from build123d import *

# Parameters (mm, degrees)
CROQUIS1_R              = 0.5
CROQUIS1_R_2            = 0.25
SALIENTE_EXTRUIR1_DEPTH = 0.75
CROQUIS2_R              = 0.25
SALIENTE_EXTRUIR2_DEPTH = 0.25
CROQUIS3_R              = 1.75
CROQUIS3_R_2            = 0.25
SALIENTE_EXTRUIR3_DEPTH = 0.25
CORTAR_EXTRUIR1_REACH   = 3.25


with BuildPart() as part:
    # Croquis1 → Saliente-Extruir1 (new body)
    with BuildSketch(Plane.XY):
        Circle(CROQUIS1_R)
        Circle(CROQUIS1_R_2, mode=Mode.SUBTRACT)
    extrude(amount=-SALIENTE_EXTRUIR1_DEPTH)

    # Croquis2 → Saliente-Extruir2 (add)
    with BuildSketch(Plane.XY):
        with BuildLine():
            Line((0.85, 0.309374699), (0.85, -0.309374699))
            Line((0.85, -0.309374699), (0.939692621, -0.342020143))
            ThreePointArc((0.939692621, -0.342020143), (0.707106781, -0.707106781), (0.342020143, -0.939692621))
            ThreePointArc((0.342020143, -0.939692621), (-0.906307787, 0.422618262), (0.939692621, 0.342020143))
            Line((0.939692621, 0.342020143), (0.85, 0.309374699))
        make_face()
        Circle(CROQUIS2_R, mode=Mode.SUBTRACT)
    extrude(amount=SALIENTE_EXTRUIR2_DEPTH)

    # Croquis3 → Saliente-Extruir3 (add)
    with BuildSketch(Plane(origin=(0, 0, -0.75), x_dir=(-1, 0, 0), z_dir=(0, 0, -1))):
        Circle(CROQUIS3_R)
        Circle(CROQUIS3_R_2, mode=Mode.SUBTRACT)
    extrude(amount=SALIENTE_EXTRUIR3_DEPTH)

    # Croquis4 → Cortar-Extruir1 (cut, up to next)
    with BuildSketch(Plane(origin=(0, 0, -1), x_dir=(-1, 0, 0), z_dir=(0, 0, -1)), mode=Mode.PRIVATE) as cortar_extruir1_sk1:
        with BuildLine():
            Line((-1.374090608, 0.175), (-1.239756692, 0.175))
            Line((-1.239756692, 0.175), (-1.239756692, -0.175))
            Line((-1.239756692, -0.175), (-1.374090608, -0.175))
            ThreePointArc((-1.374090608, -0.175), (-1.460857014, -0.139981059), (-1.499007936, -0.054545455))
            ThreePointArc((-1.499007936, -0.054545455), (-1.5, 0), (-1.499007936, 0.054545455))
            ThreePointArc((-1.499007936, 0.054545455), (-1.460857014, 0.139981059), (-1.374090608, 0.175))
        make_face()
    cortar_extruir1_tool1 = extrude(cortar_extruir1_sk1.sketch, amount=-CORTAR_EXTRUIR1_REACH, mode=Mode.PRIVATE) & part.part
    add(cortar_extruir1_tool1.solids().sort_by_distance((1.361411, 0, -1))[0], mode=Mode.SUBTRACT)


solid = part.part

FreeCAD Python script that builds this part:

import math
import FreeCAD as App
import Part
import Sketcher

V = App.Vector
Q = App.Units.Quantity

doc = App.newDocument("Part")
body = doc.addObject("PartDesign::Body", "Body")

# Sketch on XY plane
sketch1 = body.newObject("Sketcher::SketchObject", "Sketch")
sketch1.AttachmentSupport = (doc.getObject("XY_Plane"), [""])
sketch1.MapMode = "FlatFace"
sketch1.addGeometry([
    Part.Circle(V(0, 0, 0), V(0, 0, 1), 0.5),
    Part.Circle(V(0, 0, 0), V(0, 0, 1), 0.25),
], False)
sketch1.addConstraint([
    Sketcher.Constraint("Coincident", 0, 3, -1, 1),
    Sketcher.Constraint("Coincident", 1, 3, -1, 1),
    Sketcher.Constraint("Diameter", 0, Q("1 mm")),
    Sketcher.Constraint("Diameter", 1, Q("0.5 mm")),
])
pad1 = body.newObject("PartDesign::Pad", "Pad")
pad1.Profile = sketch1
pad1.Length = 0.75
pad1.Reversed = True

# Sketch on XY plane
sketch2 = body.newObject("Sketcher::SketchObject", "Sketch001")
sketch2.AttachmentSupport = (doc.getObject("XY_Plane"), [""])
sketch2.MapMode = "FlatFace"
sketch2.addGeometry([
    Part.LineSegment(V(0.85, -0.31, 0), V(0.85, 0.31, 0)),  # 0
    Part.LineSegment(V(0.85, 0.31, 0), V(0.94, 0.34, 0)),  # 1
    Part.ArcOfCircle(Part.Circle(V(0, 0, 0), V(0, 0, 1), 1), math.radians(20), math.radians(290)),  # 2
    Part.ArcOfCircle(Part.Circle(V(0, 0, 0), V(0, 0, 1), 1), math.radians(-70), math.radians(-20)),  # 3
    Part.LineSegment(V(0.94, -0.34, 0), V(0.85, -0.31, 0)),  # 4
    Part.Circle(V(0, 0, 0), V(0, 0, 1), 0.25),  # 5
], False)
sketch2.addConstraint([
    Sketcher.Constraint("Coincident", 0, 2, 1, 1),
    Sketcher.Constraint("Coincident", 1, 2, 2, 1),
    Sketcher.Constraint("Tangent", 2, 2, 3, 1),
    Sketcher.Constraint("Coincident", 3, 2, 4, 1),
    Sketcher.Constraint("Coincident", 4, 2, 0, 1),
    Sketcher.Constraint("Vertical", 0),
    Sketcher.Constraint("Coincident", 2, 3, -1, 1),
    Sketcher.Constraint("Coincident", 5, 3, -1, 1),
    Sketcher.Constraint("Equal", 2, 3),
    Sketcher.Constraint("Vertical", 1, 2, 3, 2),
    Sketcher.Constraint("Equal", 1, 4),
    Sketcher.Constraint("Radius", 2, Q("1 mm")),
    Sketcher.Constraint("Diameter", 5, Q("0.5 mm")),
    Sketcher.Constraint("Angle", 1, Q("20 deg")),
    Sketcher.Constraint("DistanceX", -1, 1, 0, 2, Q("0.85 mm")),
    Sketcher.Constraint("DistanceY", 0, 1, 0, 2, Q("0.618749 mm")),
    Sketcher.Constraint("DistanceX", -1, 1, 2, 2, Q("0.34202 mm")),
])
pad2 = body.newObject("PartDesign::Pad", "Pad001")
pad2.Profile = sketch2
pad2.Length = 0.25

# Sketch on XY plane
sketch3 = body.newObject("Sketcher::SketchObject", "Sketch002")
sketch3.AttachmentSupport = (doc.getObject("XY_Plane"), [""])
sketch3.MapMode = "FlatFace"
sketch3.AttachmentOffset = App.Placement(V(0, 0, -0.75), App.Rotation())
sketch3.addGeometry([
    Part.Circle(V(0, 0, 0), V(0, 0, 1), 1.75),
    Part.Circle(V(0, 0, 0), V(0, 0, 1), 0.25),
], False)
sketch3.addConstraint([
    Sketcher.Constraint("Coincident", 0, 3, -1, 1),
    Sketcher.Constraint("Coincident", 1, 3, -1, 1),
    Sketcher.Constraint("Diameter", 0, Q("3.5 mm")),
    Sketcher.Constraint("Diameter", 1, Q("0.5 mm")),
])
pad3 = body.newObject("PartDesign::Pad", "Pad002")
pad3.Profile = sketch3
pad3.Length = 0.25
pad3.Reversed = True

# Sketch on XY plane
sketch4 = body.newObject("Sketcher::SketchObject", "Sketch003")
sketch4.AttachmentSupport = (doc.getObject("XY_Plane"), [""])
sketch4.MapMode = "FlatFace"
sketch4.AttachmentOffset = App.Placement(V(0, 0, -1), App.Rotation())
sketch4.addGeometry([
    Part.LineSegment(V(1.24, 0.17, 0), V(1.37, 0.17, 0)),  # 0
    Part.ArcOfCircle(Part.Circle(V(1.37, 0.05, 0), V(0, 0, 1), 0.12), math.radians(2), math.radians(90)),  # 1
    Part.ArcOfCircle(Part.Circle(V(0, 0, 0), V(0, 0, 1), 1.5), math.radians(-2.08), math.radians(2.08)),  # 2
    Part.ArcOfCircle(Part.Circle(V(1.37, -0.05, 0), V(0, 0, 1), 0.12), math.radians(-90), math.radians(-2)),  # 3
    Part.LineSegment(V(1.37, -0.17, 0), V(1.24, -0.17, 0)),  # 4
    Part.LineSegment(V(1.24, -0.17, 0), V(1.24, 0.17, 0)),  # 5
], False)
sketch4.addConstraint([
    Sketcher.Constraint("Tangent", 0, 2, 1, 2),
    Sketcher.Constraint("Tangent", 1, 1, 2, 2),
    Sketcher.Constraint("Tangent", 2, 1, 3, 2),
    Sketcher.Constraint("Tangent", 3, 1, 4, 1),
    Sketcher.Constraint("Coincident", 4, 2, 5, 1),
    Sketcher.Constraint("Coincident", 5, 2, 0, 1),
    Sketcher.Constraint("Horizontal", 0),
    Sketcher.Constraint("Horizontal", 4),
    Sketcher.Constraint("Vertical", 5),
    Sketcher.Constraint("Coincident", 2, 3, -1, 1),
    Sketcher.Constraint("Equal", 1, 3),
    Sketcher.Constraint("Vertical", 1, 3, 3, 3),
    Sketcher.Constraint("Radius", 2, Q("1.499999 mm")),
    Sketcher.Constraint("Radius", 1, Q("0.125 mm")),
    Sketcher.Constraint("DistanceY", 5, 1, 5, 2, Q("0.35 mm")),
    Sketcher.Constraint("DistanceX", 0, 1, 0, 2, Q("0.134334 mm")),
])
pocket1 = body.newObject("PartDesign::Pocket", "Pocket")
pocket1.Profile = sketch4
pocket1.Type = "UpToFirst"
pocket1.Reversed = True

doc.recompute()
